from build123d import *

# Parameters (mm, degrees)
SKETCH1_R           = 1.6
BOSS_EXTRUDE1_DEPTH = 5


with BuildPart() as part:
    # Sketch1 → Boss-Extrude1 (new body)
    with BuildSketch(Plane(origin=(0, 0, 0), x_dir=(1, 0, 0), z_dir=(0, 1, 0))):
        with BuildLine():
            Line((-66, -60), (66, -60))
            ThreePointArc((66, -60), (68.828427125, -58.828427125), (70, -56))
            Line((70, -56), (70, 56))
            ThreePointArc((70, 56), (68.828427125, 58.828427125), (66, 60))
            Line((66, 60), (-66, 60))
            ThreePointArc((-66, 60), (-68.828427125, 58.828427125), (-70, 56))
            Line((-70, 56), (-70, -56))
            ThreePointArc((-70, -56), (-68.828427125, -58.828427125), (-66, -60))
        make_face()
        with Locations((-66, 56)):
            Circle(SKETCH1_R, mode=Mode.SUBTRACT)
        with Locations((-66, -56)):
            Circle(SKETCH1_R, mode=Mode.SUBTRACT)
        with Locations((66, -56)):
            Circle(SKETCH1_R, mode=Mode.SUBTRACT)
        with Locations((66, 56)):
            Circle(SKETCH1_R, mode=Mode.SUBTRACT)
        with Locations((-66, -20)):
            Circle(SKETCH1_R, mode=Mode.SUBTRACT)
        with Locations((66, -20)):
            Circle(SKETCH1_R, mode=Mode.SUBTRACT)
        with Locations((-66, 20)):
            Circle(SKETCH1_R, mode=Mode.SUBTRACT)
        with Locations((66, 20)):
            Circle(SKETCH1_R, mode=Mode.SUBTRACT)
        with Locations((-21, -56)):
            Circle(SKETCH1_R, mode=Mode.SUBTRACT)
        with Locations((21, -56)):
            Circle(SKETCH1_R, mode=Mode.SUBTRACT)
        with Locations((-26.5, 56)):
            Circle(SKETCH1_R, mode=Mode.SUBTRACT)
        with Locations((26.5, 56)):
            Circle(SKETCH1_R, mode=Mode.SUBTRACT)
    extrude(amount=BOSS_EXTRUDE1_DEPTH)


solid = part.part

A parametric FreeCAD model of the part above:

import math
import FreeCAD as App
import Part
import Sketcher
Q = App.Units.Quantity

doc = App.newDocument("Part")
body = doc.addObject("PartDesign::Body", "Body")

sketch1 = body.newObject("Sketcher::SketchObject", "Sketch")
sketch1.AttachmentSupport = (doc.getObject("XZ_Plane"), [""])
sketch1.MapMode = "FlatFace"
sketch1.addGeometry([
    Part.LineSegment(App.Vector(-66, 60, 0), App.Vector(66, 60, 0)),
    Part.ArcOfCircle(Part.Circle(App.Vector(66, 56, 0), App.Vector(0, 0, 1), 4), math.radians(0), math.radians(90)),
    Part.LineSegment(App.Vector(70, 56, 0), App.Vector(70, -56, 0)),
    Part.ArcOfCircle(Part.Circle(App.Vector(66, -56, 0), App.Vector(0, 0, 1), 4), math.radians(-90), math.radians(0)),
    Part.LineSegment(App.Vector(66, -60, 0), App.Vector(-66, -60, 0)),
    Part.ArcOfCircle(Part.Circle(App.Vector(-66, -56, 0), App.Vector(0, 0, 1), 4), math.radians(180), math.radians(270)),
    Part.LineSegment(App.Vector(-70, -56, 0), App.Vector(-70, 56, 0)),
    Part.ArcOfCircle(Part.Circle(App.Vector(-66, 56, 0), App.Vector(0, 0, 1), 4), math.radians(90), math.radians(180)),
    Part.Circle(App.Vector(-66, 56, 0), App.Vector(0, 0, 1), 1.6),
    Part.Circle(App.Vector(-21, 56, 0), App.Vector(0, 0, 1), 1.6),
    Part.Circle(App.Vector(-66, 20, 0), App.Vector(0, 0, 1), 1.6),
    Part.Circle(App.Vector(21, 56, 0), App.Vector(0, 0, 1), 1.6),
    Part.Circle(App.Vector(66, 56, 0), App.Vector(0, 0, 1), 1.6),
    Part.Circle(App.Vector(66, 20, 0), App.Vector(0, 0, 1), 1.6),
    Part.Circle(App.Vector(-66, -20, 0), App.Vector(0, 0, 1), 1.6),
    Part.Circle(App.Vector(-66, -56, 0), App.Vector(0, 0, 1), 1.6),
    Part.Circle(App.Vector(-26.5, -56, 0), App.Vector(0, 0, 1), 1.6),
    Part.Circle(App.Vector(66, -20, 0), App.Vector(0, 0, 1), 1.6),
    Part.Circle(App.Vector(26.5, -56, 0), App.Vector(0, 0, 1), 1.6),
    Part.Circle(App.Vector(66, -56, 0), App.Vector(0, 0, 1), 1.6),
], False)
sketch1.addConstraint([
    Sketcher.Constraint("Tangent", 0, 2, 1, 2),
    Sketcher.Constraint("Tangent", 1, 1, 2, 1),
    Sketcher.Constraint("Tangent", 2, 2, 3, 2),
    Sketcher.Constraint("Tangent", 3, 1, 4, 1),
    Sketcher.Constraint("Tangent", 4, 2, 5, 2),
    Sketcher.Constraint("Tangent", 5, 1, 6, 1),
    Sketcher.Constraint("Tangent", 6, 2, 7, 2),
    Sketcher.Constraint("Tangent", 7, 1, 0, 1),
    Sketcher.Constraint("Horizontal", 0),
    Sketcher.Constraint("Vertical", 2),
    Sketcher.Constraint("Horizontal", 4),
    Sketcher.Constraint("Vertical", 6),
    Sketcher.Constraint("Coincident", 8, 3, 7, 3),
    Sketcher.Constraint("Coincident", 12, 3, 1, 3),
    Sketcher.Constraint("Coincident", 15, 3, 5, 3),
    Sketcher.Constraint("Coincident", 19, 3, 3, 3),
    Sketcher.Constraint("Equal", 1, 3),
    Sketcher.Constraint("Equal", 3, 5),
    Sketcher.Constraint("Equal", 5, 7),
    Sketcher.Constraint("Equal", 8, 9),
    Sketcher.Constraint("Equal", 9, 10),
    Sketcher.Constraint("Equal", 10, 11),
    Sketcher.Constraint("Equal", 11, 12),
    Sketcher.Constraint("Equal", 12, 13),
    Sketcher.Constraint("Equal", 13, 14),
    Sketcher.Constraint("Equal", 14, 15),
    Sketcher.Constraint("Equal", 15, 16),
    Sketcher.Constraint("Equal", 16, 17),
    Sketcher.Constraint("Equal", 17, 18),
    Sketcher.Constraint("Equal", 18, 19),
    Sketcher.Constraint("Symmetric", 1, 3, 5, 3, -1, 1),
    Sketcher.Constraint("Symmetric", 13, 3, 14, 3, -1, 1),
    Sketcher.Constraint("Symmetric", 10, 3, 17, 3, -1, 1),
    Sketcher.Constraint("Symmetric", 9, 3, 11, 3, -2),
    Sketcher.Constraint("Symmetric", 10, 3, 13, 3, -2),
    Sketcher.Constraint("Symmetric", 16, 3, 18, 3, -2),
    Sketcher.Constraint("Horizontal", 8, 3, 9, 3),
    Sketcher.Constraint("Horizontal", 15, 3, 16, 3),
    Sketcher.Constraint("Vertical", 8, 3, 10, 3),
    Sketcher.Constraint("Radius", 1, Q("4 mm")),
    Sketcher.Constraint("Diameter", 8, Q("3.2 mm")),
    Sketcher.Constraint("DistanceX", 0, 1, 0, 2, Q("132 mm")),
    Sketcher.Constraint("DistanceY", 2, 2, 2, 1, Q("112 mm")),
    Sketcher.Constraint("DistanceX", 9, 3, -1, 1, Q("21 mm")),
    Sketcher.Constraint("DistanceY", -1, 1, 10, 3, Q("20 mm")),
    Sketcher.Constraint("DistanceX", 16, 3, 18, 3, Q("53 mm")),
])
pad1 = body.newObject("PartDesign::Pad", "Pad")
pad1.Profile = sketch1
pad1.Length = 5
pad1.Reversed = True

doc.recompute()
